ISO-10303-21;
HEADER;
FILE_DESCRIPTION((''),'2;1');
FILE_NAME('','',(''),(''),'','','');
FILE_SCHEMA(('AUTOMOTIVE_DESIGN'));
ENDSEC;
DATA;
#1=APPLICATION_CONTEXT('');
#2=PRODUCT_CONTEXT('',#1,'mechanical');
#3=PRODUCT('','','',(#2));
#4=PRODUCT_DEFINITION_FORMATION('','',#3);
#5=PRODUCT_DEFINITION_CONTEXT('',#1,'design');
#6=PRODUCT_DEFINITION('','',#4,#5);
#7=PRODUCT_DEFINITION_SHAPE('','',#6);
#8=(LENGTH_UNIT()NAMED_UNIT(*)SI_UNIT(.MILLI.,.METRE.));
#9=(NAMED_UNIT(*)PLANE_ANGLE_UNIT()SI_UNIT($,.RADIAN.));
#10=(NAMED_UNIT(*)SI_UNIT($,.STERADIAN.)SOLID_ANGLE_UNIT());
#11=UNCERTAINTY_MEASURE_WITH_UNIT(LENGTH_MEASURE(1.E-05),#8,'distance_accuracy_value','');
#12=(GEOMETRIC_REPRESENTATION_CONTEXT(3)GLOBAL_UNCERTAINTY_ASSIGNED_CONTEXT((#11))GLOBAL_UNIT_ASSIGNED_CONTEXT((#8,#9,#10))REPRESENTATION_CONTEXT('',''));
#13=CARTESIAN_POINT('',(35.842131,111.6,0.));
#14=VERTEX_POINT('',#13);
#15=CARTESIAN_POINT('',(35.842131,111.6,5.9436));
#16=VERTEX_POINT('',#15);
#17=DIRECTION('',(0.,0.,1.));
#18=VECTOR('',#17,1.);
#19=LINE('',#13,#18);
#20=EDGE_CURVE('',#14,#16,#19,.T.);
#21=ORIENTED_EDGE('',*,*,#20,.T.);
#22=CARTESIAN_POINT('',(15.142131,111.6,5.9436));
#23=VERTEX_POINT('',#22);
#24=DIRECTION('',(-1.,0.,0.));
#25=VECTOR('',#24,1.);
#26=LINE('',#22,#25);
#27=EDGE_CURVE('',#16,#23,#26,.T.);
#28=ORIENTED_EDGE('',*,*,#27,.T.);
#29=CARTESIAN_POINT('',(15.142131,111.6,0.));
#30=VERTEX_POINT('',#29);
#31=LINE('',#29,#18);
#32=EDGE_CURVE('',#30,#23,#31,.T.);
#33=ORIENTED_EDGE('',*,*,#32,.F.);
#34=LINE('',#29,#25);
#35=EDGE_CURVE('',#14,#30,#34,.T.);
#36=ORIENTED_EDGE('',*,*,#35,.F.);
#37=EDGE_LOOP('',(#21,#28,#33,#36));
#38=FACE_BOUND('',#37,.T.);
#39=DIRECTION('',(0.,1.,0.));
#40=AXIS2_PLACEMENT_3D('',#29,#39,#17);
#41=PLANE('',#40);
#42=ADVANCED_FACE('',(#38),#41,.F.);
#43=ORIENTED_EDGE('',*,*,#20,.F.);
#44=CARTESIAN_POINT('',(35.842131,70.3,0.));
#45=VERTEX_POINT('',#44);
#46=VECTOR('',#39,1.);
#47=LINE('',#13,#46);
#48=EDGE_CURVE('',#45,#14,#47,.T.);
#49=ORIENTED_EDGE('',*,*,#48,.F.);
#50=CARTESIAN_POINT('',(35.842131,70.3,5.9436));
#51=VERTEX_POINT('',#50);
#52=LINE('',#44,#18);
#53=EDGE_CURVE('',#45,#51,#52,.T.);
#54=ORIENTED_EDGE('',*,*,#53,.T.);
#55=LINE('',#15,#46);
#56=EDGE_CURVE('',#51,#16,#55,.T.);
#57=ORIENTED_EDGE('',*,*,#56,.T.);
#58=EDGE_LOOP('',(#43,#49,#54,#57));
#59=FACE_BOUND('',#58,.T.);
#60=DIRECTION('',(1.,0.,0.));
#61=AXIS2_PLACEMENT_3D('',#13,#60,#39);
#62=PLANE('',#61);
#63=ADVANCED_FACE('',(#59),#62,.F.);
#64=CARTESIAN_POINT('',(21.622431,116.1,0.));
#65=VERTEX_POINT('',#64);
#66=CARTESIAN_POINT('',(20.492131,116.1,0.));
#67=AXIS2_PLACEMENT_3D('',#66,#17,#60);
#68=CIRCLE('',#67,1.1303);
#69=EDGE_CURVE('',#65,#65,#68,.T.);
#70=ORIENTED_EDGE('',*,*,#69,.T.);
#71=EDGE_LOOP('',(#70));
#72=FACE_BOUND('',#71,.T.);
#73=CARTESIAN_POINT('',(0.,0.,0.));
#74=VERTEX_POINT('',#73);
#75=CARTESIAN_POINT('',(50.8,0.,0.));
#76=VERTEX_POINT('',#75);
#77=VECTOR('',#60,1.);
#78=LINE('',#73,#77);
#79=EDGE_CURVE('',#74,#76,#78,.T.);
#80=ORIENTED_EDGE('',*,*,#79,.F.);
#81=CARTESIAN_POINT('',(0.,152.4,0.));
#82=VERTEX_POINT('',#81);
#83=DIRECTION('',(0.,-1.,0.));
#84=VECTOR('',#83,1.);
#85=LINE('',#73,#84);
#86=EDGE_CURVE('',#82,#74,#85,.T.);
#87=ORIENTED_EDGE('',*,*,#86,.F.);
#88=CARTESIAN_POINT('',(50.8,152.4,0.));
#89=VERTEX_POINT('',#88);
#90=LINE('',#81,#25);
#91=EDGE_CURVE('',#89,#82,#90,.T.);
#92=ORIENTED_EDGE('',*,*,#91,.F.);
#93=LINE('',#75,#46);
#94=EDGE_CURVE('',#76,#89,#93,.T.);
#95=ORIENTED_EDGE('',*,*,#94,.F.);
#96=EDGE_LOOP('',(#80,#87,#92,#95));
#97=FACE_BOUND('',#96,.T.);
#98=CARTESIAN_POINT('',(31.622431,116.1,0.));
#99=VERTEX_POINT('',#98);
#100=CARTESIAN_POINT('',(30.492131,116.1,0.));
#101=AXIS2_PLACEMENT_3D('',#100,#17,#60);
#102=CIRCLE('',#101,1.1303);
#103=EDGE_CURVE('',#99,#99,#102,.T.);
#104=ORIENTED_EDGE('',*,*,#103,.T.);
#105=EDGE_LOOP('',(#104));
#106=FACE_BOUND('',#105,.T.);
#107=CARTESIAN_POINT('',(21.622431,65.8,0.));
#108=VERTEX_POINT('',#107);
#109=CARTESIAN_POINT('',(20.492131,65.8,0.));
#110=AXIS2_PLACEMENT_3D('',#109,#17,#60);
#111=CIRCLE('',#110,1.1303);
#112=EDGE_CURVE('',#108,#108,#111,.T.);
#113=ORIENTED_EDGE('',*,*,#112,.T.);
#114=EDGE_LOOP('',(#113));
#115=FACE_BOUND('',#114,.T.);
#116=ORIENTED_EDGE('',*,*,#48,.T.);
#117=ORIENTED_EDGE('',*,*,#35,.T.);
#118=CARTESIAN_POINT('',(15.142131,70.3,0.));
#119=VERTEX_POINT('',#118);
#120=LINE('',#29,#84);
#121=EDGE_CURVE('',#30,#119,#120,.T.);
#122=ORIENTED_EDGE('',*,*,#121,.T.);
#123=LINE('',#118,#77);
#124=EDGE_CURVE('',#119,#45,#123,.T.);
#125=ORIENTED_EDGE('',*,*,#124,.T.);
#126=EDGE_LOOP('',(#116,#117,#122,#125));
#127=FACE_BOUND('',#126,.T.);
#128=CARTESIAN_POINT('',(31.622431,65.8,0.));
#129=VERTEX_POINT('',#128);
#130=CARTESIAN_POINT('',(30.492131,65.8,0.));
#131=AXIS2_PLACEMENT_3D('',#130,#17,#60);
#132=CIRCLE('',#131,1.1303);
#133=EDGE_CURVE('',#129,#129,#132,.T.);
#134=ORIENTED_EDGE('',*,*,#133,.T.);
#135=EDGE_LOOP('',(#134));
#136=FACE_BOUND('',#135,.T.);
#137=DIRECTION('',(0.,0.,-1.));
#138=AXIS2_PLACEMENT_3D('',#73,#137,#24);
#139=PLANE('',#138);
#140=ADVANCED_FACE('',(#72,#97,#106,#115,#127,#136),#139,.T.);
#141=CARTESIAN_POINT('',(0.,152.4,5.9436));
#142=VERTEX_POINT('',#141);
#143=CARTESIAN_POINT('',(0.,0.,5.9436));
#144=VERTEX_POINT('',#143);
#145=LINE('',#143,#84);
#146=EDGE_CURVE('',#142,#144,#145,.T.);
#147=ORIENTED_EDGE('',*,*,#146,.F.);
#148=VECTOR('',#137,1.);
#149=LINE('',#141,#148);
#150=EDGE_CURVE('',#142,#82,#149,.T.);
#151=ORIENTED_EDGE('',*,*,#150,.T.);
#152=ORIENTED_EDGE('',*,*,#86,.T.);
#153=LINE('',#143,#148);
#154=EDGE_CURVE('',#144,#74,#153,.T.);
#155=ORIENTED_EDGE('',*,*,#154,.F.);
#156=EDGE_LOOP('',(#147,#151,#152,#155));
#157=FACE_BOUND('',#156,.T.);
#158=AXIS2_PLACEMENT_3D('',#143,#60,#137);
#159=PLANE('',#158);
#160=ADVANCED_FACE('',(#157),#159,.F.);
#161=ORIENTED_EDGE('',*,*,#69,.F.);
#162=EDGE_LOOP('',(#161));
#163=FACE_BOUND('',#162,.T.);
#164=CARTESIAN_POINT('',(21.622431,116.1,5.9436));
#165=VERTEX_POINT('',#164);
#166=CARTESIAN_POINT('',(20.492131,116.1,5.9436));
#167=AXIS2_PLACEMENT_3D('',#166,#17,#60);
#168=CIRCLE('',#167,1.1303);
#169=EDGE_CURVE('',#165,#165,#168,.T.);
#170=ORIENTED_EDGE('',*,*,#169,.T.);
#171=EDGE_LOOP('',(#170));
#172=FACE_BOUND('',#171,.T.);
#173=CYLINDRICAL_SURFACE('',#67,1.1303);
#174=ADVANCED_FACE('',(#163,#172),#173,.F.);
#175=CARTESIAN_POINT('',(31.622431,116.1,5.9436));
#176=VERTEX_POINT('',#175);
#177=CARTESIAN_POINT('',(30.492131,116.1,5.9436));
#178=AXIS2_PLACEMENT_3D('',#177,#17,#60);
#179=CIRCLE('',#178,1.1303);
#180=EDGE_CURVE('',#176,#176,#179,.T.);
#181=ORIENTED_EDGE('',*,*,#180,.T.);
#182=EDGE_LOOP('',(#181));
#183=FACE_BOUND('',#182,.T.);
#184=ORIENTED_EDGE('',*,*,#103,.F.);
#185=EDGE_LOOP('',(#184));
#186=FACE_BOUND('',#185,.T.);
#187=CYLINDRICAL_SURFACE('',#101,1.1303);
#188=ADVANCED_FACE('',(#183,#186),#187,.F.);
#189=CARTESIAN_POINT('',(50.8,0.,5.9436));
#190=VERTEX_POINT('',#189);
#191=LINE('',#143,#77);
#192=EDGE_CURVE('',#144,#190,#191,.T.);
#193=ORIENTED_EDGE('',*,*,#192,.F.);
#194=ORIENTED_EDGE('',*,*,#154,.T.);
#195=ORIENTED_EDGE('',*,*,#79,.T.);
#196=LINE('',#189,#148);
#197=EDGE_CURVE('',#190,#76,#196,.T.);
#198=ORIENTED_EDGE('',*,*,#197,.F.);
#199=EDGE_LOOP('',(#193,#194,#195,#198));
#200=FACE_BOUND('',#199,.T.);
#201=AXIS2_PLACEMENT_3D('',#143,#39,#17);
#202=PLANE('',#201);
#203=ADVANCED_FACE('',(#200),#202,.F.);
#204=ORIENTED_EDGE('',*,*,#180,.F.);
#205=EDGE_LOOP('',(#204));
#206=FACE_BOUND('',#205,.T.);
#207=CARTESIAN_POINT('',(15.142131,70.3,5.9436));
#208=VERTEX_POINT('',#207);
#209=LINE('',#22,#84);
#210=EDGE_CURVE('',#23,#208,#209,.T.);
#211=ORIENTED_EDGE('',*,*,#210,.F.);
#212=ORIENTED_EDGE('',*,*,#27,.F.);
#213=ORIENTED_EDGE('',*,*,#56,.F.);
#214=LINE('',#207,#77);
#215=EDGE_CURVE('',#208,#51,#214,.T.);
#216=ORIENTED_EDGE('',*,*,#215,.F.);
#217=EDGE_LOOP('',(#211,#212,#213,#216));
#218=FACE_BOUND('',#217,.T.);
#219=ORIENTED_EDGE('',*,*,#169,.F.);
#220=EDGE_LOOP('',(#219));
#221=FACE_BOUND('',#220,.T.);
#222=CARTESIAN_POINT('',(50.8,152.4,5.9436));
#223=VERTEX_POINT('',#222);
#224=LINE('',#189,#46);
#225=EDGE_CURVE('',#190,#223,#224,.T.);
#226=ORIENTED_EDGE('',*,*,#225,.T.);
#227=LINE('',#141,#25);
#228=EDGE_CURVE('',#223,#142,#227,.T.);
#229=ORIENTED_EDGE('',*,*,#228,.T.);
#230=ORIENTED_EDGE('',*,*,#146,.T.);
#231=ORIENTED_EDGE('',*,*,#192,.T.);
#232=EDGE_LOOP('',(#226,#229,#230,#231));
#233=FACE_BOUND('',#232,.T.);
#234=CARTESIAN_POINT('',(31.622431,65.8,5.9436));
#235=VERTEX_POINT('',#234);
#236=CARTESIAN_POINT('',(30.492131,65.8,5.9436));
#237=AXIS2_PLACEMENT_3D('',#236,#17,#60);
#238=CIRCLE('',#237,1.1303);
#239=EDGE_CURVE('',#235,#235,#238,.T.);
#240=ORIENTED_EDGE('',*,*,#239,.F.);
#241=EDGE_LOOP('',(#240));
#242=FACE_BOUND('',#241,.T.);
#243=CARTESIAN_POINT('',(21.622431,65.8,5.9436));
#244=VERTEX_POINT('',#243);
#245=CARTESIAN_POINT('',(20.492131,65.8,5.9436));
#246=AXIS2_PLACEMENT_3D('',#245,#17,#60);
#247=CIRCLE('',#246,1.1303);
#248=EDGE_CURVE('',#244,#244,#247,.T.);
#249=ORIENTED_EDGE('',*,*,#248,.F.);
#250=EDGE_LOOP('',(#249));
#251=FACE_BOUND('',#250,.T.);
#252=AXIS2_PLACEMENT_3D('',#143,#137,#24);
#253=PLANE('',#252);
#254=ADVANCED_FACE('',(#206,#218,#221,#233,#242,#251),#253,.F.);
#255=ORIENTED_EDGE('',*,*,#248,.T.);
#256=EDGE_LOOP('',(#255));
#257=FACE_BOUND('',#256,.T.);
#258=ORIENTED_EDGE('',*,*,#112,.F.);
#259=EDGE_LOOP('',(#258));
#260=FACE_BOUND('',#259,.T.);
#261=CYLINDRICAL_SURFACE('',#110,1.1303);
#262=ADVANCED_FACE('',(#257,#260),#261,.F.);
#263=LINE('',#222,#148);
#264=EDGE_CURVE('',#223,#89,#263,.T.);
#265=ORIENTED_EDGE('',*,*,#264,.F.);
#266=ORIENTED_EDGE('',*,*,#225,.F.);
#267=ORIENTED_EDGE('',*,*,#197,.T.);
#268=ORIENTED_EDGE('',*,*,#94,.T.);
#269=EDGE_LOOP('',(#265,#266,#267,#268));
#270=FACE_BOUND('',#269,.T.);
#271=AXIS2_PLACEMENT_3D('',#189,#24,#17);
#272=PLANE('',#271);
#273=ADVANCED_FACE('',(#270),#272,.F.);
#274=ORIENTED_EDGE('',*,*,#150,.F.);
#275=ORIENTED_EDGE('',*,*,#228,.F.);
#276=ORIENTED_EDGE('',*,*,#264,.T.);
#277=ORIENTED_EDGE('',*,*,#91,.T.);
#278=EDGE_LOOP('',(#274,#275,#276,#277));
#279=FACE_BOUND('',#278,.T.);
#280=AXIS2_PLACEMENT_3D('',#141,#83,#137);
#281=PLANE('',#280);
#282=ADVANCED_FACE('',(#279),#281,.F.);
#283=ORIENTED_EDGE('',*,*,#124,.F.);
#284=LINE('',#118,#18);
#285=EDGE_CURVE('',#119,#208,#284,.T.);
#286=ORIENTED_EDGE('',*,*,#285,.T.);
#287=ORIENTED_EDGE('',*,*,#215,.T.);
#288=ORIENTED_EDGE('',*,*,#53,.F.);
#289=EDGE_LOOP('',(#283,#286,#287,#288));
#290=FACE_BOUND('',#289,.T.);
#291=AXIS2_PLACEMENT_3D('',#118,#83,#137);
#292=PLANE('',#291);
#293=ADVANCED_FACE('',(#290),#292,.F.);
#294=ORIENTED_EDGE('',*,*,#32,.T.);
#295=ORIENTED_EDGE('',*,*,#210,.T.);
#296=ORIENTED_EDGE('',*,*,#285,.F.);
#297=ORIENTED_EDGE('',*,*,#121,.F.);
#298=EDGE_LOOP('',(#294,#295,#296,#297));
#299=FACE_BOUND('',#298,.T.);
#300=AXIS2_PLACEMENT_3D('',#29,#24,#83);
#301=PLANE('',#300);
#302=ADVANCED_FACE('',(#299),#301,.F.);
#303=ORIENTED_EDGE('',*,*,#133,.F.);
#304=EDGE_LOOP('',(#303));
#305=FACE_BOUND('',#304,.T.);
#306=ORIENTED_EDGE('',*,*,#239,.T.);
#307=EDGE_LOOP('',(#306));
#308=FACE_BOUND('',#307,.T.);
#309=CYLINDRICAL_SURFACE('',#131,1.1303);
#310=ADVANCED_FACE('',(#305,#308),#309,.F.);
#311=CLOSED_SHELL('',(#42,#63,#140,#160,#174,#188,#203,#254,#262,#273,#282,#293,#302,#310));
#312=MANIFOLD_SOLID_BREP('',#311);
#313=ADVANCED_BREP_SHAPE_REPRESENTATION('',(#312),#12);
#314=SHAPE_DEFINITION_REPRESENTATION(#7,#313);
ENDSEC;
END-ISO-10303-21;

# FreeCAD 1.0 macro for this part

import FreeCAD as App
import Part
import Sketcher
Q = App.Units.Quantity

doc = App.newDocument("Part")
body = doc.addObject("PartDesign::Body", "Body")

# Sketch on XY plane
sketch1 = body.newObject("Sketcher::SketchObject", "Sketch")
sketch1.AttachmentSupport = (doc.getObject("XY_Plane"), [""])
sketch1.MapMode = "FlatFace"
sketch1.addGeometry([
    Part.LineSegment(App.Vector(0, 152, 0), App.Vector(0, 0, 0)),
    Part.LineSegment(App.Vector(0, 0, 0), App.Vector(51, 0, 0)),
    Part.LineSegment(App.Vector(51, 0, 0), App.Vector(51, 152, 0)),
    Part.LineSegment(App.Vector(51, 152, 0), App.Vector(0, 152, 0)),
], False)
sketch1.addConstraint([
    Sketcher.Constraint("Coincident", 0, 2, 1, 1),
    Sketcher.Constraint("Coincident", 1, 2, 2, 1),
    Sketcher.Constraint("Coincident", 2, 2, 3, 1),
    Sketcher.Constraint("Coincident", 3, 2, 0, 1),
    Sketcher.Constraint("Vertical", 0),
    Sketcher.Constraint("Horizontal", 1),
    Sketcher.Constraint("Vertical", 2),
    Sketcher.Constraint("Horizontal", 3),
    Sketcher.Constraint("Coincident", 0, 2, -1, 1),
    Sketcher.Constraint("DistanceX", 1, 1, 1, 2, Q("2 in")),
    Sketcher.Constraint("DistanceY", 0, 2, 0, 1, Q("6 in")),
])
pad1 = body.newObject("PartDesign::Pad", "Pad")
pad1.Profile = sketch1
pad1.Length = Q("0.234 in")

# Sketch on XY plane
sketch2 = body.newObject("Sketcher::SketchObject", "Sketch001")
sketch2.AttachmentSupport = (doc.getObject("XY_Plane"), [""])
sketch2.MapMode = "FlatFace"
sketch2.AttachmentOffset = App.Placement(App.Vector(0, 0, 0.234 * 25.4), App.Rotation())
sketch2.addGeometry([
    Part.Circle(App.Vector(20.5, 116.1, 0), App.Vector(0, 0, 1), 1.1),  # 0
    Part.Circle(App.Vector(30.5, 116.1, 0), App.Vector(0, 0, 1), 1.1),  # 1
    Part.Circle(App.Vector(20.5, 65.8, 0), App.Vector(0, 0, 1), 1.1),  # 2
    Part.Circle(App.Vector(30.5, 65.8, 0), App.Vector(0, 0, 1), 1.1),  # 3
    Part.LineSegment(App.Vector(15.1, 111.6, 0), App.Vector(15.1, 70.3, 0)),  # 4
    Part.LineSegment(App.Vector(15.1, 70.3, 0), App.Vector(35.8, 70.3, 0)),  # 5
    Part.LineSegment(App.Vector(35.8, 70.3, 0), App.Vector(35.8, 111.6, 0)),  # 6
    Part.LineSegment(App.Vector(35.8, 111.6, 0), App.Vector(15.1, 111.6, 0)),  # 7
], False)
sketch2.addConstraint([
    Sketcher.Constraint("Coincident", 4, 2, 5, 1),
    Sketcher.Constraint("Coincident", 5, 2, 6, 1),
    Sketcher.Constraint("Coincident", 6, 2, 7, 1),
    Sketcher.Constraint("Coincident", 7, 2, 4, 1),
    Sketcher.Constraint("Vertical", 4),
    Sketcher.Constraint("Horizontal", 5),
    Sketcher.Constraint("Vertical", 6),
    Sketcher.Constraint("Horizontal", 7),
    Sketcher.Constraint("Equal", 0, 1),
    Sketcher.Constraint("Equal", 1, 2),
    Sketcher.Constraint("Equal", 2, 3),
    Sketcher.Constraint("Horizontal", 0, 3, 1, 3),
    Sketcher.Constraint("Horizontal", 2, 3, 3, 3),
    Sketcher.Constraint("Vertical", 0, 3, 2, 3),
    Sketcher.Constraint("Vertical", 1, 3, 3, 3),
    Sketcher.Constraint("Diameter", 0, Q("0.089 in")),
    Sketcher.Constraint("DistanceX", 5, 1, 5, 2, 20.7),
    Sketcher.Constraint("DistanceY", 4, 2, 4, 1, 41.3),
    Sketcher.Constraint("DistanceY", -1, 1, 0, 3, 116.1),
    Sketcher.Constraint("DistanceY", -1, 1, 2, 3, 65.8),
    Sketcher.Constraint("DistanceY", -1, 1, 4, 2, 70.3),
    Sketcher.Constraint("DistanceX", 0, 3, 1, 3, 10.0),
    Sketcher.Constraint("DistanceX", 4, 2, 2, 3, 5.35),
    Sketcher.Constraint("DistanceX", -1, 1, 0, 3, 20.492131),
])
pocket1 = body.newObject("PartDesign::Pocket", "Pocket")
pocket1.Profile = sketch2
pocket1.Type = "ThroughAll"

doc.recompute()
